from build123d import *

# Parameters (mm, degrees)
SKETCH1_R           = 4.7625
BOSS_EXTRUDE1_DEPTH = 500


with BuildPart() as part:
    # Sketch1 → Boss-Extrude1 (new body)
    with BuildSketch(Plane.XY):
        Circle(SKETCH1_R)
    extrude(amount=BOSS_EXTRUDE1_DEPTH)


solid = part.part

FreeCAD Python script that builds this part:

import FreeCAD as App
import Part
import Sketcher
Q = App.Units.Quantity

doc = App.newDocument("Part")
params = doc.addObject("Spreadsheet::Sheet", "Params")
for row, (alias, value) in enumerate([
    ("pad1_length", "500 mm"),
], start=1):
    params.set(f"A{row}", alias)
    params.set(f"B{row}", "=" + value)
    params.setAlias(f"B{row}", alias)

body = doc.addObject("PartDesign::Body", "Body")

# Sketch on XY plane
sketch1 = body.newObject("Sketcher::SketchObject", "Sketch")
sketch1.AttachmentSupport = (doc.getObject("XY_Plane"), [""])
sketch1.MapMode = "FlatFace"
sketch1.addGeometry(Part.Circle(App.Vector(0, 0, 0), App.Vector(0, 0, 1), 4.8), False)
sketch1.addConstraint([
    Sketcher.Constraint("Coincident", 0, 3, -1, 1),
    Sketcher.Constraint("Diameter", 0, Q("9.525 mm")),
])
pad1 = body.newObject("PartDesign::Pad", "Pad")
pad1.Profile = sketch1
pad1.setExpression("Length", "Params.pad1_length")

doc.recompute()
